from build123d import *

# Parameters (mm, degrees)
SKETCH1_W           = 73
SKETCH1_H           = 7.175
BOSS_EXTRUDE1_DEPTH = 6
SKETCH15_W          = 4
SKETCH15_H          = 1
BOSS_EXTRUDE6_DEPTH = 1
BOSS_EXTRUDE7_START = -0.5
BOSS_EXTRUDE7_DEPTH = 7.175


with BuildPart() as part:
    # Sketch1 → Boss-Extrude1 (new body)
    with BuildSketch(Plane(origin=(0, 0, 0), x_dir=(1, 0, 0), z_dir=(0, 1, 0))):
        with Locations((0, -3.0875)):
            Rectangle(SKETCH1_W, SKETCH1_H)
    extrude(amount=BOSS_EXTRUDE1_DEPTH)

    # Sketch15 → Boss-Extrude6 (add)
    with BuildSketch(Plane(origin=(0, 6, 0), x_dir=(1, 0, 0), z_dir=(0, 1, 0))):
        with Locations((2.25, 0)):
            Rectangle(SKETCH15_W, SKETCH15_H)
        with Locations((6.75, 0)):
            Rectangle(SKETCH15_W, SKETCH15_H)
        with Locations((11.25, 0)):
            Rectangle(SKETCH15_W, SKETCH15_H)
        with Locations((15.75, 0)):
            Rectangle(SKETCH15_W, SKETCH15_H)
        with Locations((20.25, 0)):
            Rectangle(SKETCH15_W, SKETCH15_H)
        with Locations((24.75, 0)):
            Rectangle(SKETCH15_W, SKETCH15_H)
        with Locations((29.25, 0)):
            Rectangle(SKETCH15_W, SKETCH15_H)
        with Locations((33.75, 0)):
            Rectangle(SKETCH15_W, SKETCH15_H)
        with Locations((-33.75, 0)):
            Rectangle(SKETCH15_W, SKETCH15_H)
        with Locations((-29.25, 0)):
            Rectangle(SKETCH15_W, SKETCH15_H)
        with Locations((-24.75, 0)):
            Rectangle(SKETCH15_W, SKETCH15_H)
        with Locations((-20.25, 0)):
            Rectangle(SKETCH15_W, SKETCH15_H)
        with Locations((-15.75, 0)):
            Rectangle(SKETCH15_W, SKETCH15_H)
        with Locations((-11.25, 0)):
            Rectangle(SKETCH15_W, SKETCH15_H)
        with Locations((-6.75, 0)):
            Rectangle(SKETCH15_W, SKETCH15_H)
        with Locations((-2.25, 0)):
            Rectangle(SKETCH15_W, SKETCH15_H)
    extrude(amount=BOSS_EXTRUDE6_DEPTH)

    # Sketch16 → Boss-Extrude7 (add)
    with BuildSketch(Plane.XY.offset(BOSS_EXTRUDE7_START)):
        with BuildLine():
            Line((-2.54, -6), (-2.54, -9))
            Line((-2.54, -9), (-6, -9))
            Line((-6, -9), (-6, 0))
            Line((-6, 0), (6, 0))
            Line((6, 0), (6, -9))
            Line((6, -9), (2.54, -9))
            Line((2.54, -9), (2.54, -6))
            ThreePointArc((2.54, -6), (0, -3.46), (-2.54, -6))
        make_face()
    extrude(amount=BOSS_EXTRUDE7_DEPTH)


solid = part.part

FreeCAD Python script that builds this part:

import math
import FreeCAD as App
import Part
import Sketcher
Q = App.Units.Quantity


def add_polygon(sketch, points):
    """Adds a closed chain of lines whose ends are joined by coincident constraints."""
    first, n = sketch.GeometryCount, len(points)
    for a, b in zip(points, points[1:] + points[:1]):
        sketch.addGeometry(Part.LineSegment(App.Vector(*a, 0), App.Vector(*b, 0)), False)
    for i in range(n):
        sketch.addConstraint(Sketcher.Constraint("Coincident", first + i, 2, first + (i + 1) % n, 1))

doc = App.newDocument("Part")
body = doc.addObject("PartDesign::Body", "Body")

# Sketch on XZ plane
sketch1 = doc.addObject("Sketcher::SketchObject", "Sketch")
body.addObject(sketch1)
sketch1.AttachmentSupport = (doc.XZ_Plane, [""])
sketch1.MapMode = "FlatFace"
add_polygon(sketch1, [(-36.5, -0.5), (-36.5, 6.675), (36.5, 6.675), (36.5, -0.5)])  # lines 0-3
sketch1.addConstraint([
    Sketcher.Constraint("Vertical", 0),
    Sketcher.Constraint("Horizontal", 1),
    Sketcher.Constraint("Vertical", 2),
    Sketcher.Constraint("Horizontal", 3),
    Sketcher.Constraint("DistanceX", 1, 1, 1, 2, Q("73 mm")),
    Sketcher.Constraint("DistanceX", 0, 2, -1, 1, Q("36.5 mm")),
    Sketcher.Constraint("DistanceY", 2, 2, -1, 1, Q("0.5 mm")),
    Sketcher.Constraint("DistanceY", 0, 1, 0, 2, Q("7.175 mm")),
])
pad1 = doc.addObject("PartDesign::Pad", "Pad")
body.addObject(pad1)
pad1.Profile = sketch1
pad1.Length = 6
pad1.Reversed = True

# Sketch on XZ plane
sketch2 = doc.addObject("Sketcher::SketchObject", "Sketch001")
body.addObject(sketch2)
sketch2.AttachmentSupport = (doc.XZ_Plane, [""])
sketch2.MapMode = "FlatFace"
sketch2.AttachmentOffset = App.Placement(App.Vector(0, 0, -6), App.Rotation())
add_polygon(sketch2, [(0.25, -0.5), (0.25, 0.5), (4.25, 0.5), (4.25, -0.5)])  # lines 0-3
add_polygon(sketch2, [(4.75, -0.5), (4.75, 0.5), (8.75, 0.5), (8.75, -0.5)])  # lines 4-7
add_polygon(sketch2, [(9.25, -0.5), (9.25, 0.5), (13.25, 0.5), (13.25, -0.5)])  # lines 8-11
add_polygon(sketch2, [(13.75, -0.5), (13.75, 0.5), (17.75, 0.5), (17.75, -0.5)])  # lines 12-15
add_polygon(sketch2, [(18.25, -0.5), (18.25, 0.5), (22.25, 0.5), (22.25, -0.5)])  # lines 16-19
add_polygon(sketch2, [(22.75, -0.5), (22.75, 0.5), (26.75, 0.5), (26.75, -0.5)])  # lines 20-23
add_polygon(sketch2, [(27.25, -0.5), (27.25, 0.5), (31.25, 0.5), (31.25, -0.5)])  # lines 24-27
add_polygon(sketch2, [(31.75, -0.5), (31.75, 0.5), (35.75, 0.5), (35.75, -0.5)])  # lines 28-31
add_polygon(sketch2, [(-35.75, -0.5), (-35.75, 0.5), (-31.75, 0.5), (-31.75, -0.5)])  # lines 32-35
add_polygon(sketch2, [(-31.25, -0.5), (-31.25, 0.5), (-27.25, 0.5), (-27.25, -0.5)])  # lines 36-39
add_polygon(sketch2, [(-26.75, -0.5), (-26.75, 0.5), (-22.75, 0.5), (-22.75, -0.5)])  # lines 40-43
add_polygon(sketch2, [(-22.25, -0.5), (-22.25, 0.5), (-18.25, 0.5), (-18.25, -0.5)])  # lines 44-47
add_polygon(sketch2, [(-17.75, -0.5), (-17.75, 0.5), (-13.75, 0.5), (-13.75, -0.5)])  # lines 48-51
add_polygon(sketch2, [(-13.25, -0.5), (-13.25, 0.5), (-9.25, 0.5), (-9.25, -0.5)])  # lines 52-55
add_polygon(sketch2, [(-8.75, -0.5), (-8.75, 0.5), (-4.75, 0.5), (-4.75, -0.5)])  # lines 56-59
add_polygon(sketch2, [(-4.25, -0.5), (-4.25, 0.5), (-0.25, 0.5), (-0.25, -0.5)])  # lines 60-63
sketch2.addConstraint([
    Sketcher.Constraint("Vertical", 0),
    Sketcher.Constraint("Horizontal", 1),
    Sketcher.Constraint("Vertical", 2),
    Sketcher.Constraint("Horizontal", 3),
    Sketcher.Constraint("Vertical", 4),
    Sketcher.Constraint("Horizontal", 5),
    Sketcher.Constraint("Vertical", 6),
    Sketcher.Constraint("Horizontal", 7),
    Sketcher.Constraint("Vertical", 8),
    Sketcher.Constraint("Horizontal", 9),
    Sketcher.Constraint("Vertical", 10),
    Sketcher.Constraint("Horizontal", 11),
    Sketcher.Constraint("Vertical", 12),
    Sketcher.Constraint("Horizontal", 13),
    Sketcher.Constraint("Vertical", 14),
    Sketcher.Constraint("Horizontal", 15),
    Sketcher.Constraint("Vertical", 16),
    Sketcher.Constraint("Horizontal", 17),
    Sketcher.Constraint("Vertical", 18),
    Sketcher.Constraint("Horizontal", 19),
    Sketcher.Constraint("Vertical", 20),
    Sketcher.Constraint("Horizontal", 21),
    Sketcher.Constraint("Vertical", 22),
    Sketcher.Constraint("Horizontal", 23),
    Sketcher.Constraint("Vertical", 24),
    Sketcher.Constraint("Horizontal", 25),
    Sketcher.Constraint("Vertical", 26),
    Sketcher.Constraint("Horizontal", 27),
    Sketcher.Constraint("Vertical", 28),
    Sketcher.Constraint("Horizontal", 29),
    Sketcher.Constraint("Vertical", 30),
    Sketcher.Constraint("Horizontal", 31),
    Sketcher.Constraint("Vertical", 32),
    Sketcher.Constraint("Horizontal", 33),
    Sketcher.Constraint("Vertical", 34),
    Sketcher.Constraint("Horizontal", 35),
    Sketcher.Constraint("Vertical", 36),
    Sketcher.Constraint("Horizontal", 37),
    Sketcher.Constraint("Vertical", 38),
    Sketcher.Constraint("Horizontal", 39),
    Sketcher.Constraint("Vertical", 40),
    Sketcher.Constraint("Horizontal", 41),
    Sketcher.Constraint("Vertical", 42),
    Sketcher.Constraint("Horizontal", 43),
    Sketcher.Constraint("Vertical", 44),
    Sketcher.Constraint("Horizontal", 45),
    Sketcher.Constraint("Vertical", 46),
    Sketcher.Constraint("Horizontal", 47),
    Sketcher.Constraint("Vertical", 48),
    Sketcher.Constraint("Horizontal", 49),
    Sketcher.Constraint("Vertical", 50),
    Sketcher.Constraint("Horizontal", 51),
    Sketcher.Constraint("Vertical", 52),
    Sketcher.Constraint("Horizontal", 53),
    Sketcher.Constraint("Vertical", 54),
    Sketcher.Constraint("Horizontal", 55),
    Sketcher.Constraint("Vertical", 56),
    Sketcher.Constraint("Horizontal", 57),
    Sketcher.Constraint("Vertical", 58),
    Sketcher.Constraint("Horizontal", 59),
    Sketcher.Constraint("Vertical", 60),
    Sketcher.Constraint("Horizontal", 61),
    Sketcher.Constraint("Vertical", 62),
    Sketcher.Constraint("Horizontal", 63),
    Sketcher.Constraint("Symmetric", 30, 2, 32, 2, -1, 1),
    Sketcher.Constraint("Symmetric", 28, 2, 34, 2, -1, 1),
    Sketcher.Constraint("Symmetric", 26, 2, 36, 2, -1, 1),
    Sketcher.Constraint("Symmetric", 24, 2, 38, 2, -1, 1),
    Sketcher.Constraint("Symmetric", 22, 2, 40, 2, -1, 1),
    Sketcher.Constraint("Symmetric", 20, 2, 42, 2, -1, 1),
    Sketcher.Constraint("Symmetric", 18, 2, 44, 2, -1, 1),
    Sketcher.Constraint("Symmetric", 16, 2, 46, 2, -1, 1),
    Sketcher.Constraint("Symmetric", 14, 2, 48, 2, -1, 1),
    Sketcher.Constraint("Symmetric", 12, 2, 50, 2, -1, 1),
    Sketcher.Constraint("Symmetric", 10, 2, 52, 2, -1, 1),
    Sketcher.Constraint("Symmetric", 8, 2, 54, 2, -1, 1),
    Sketcher.Constraint("Symmetric", 6, 2, 56, 2, -1, 1),
    Sketcher.Constraint("Symmetric", 4, 2, 58, 2, -1, 1),
    Sketcher.Constraint("Symmetric", 2, 2, 60, 2, -1, 1),
    Sketcher.Constraint("Symmetric", 0, 2, 62, 2, -1, 1),
    Sketcher.Constraint("Horizontal", 1, 2, 4, 2),
    Sketcher.Constraint("Horizontal", 3, 2, 6, 2),
    Sketcher.Constraint("Horizontal", 5, 2, 8, 2),
    Sketcher.Constraint("Horizontal", 7, 2, 10, 2),
    Sketcher.Constraint("Horizontal", 9, 2, 12, 2),
    Sketcher.Constraint("Horizontal", 11, 2, 14, 2),
    Sketcher.Constraint("Horizontal", 13, 2, 16, 2),
    Sketcher.Constraint("Horizontal", 15, 2, 18, 2),
    Sketcher.Constraint("Horizontal", 17, 2, 20, 2),
    Sketcher.Constraint("Horizontal", 19, 2, 22, 2),
    Sketcher.Constraint("Horizontal", 21, 2, 24, 2),
    Sketcher.Constraint("Horizontal", 23, 2, 26, 2),
    Sketcher.Constraint("Horizontal", 25, 2, 28, 2),
    Sketcher.Constraint("Horizontal", 27, 2, 30, 2),
    Sketcher.Constraint("Horizontal", 29, 2, 32, 2),
    Sketcher.Constraint("Equal", 3, 5),
    Sketcher.Constraint("Equal", 7, 9),
    Sketcher.Constraint("Equal", 11, 13),
    Sketcher.Constraint("Equal", 15, 17),
    Sketcher.Constraint("Equal", 19, 21),
    Sketcher.Constraint("Equal", 23, 25),
    Sketcher.Constraint("Equal", 27, 29),
    Sketcher.Constraint("DistanceX", 1, 1, 1, 2, Q("4 mm")),
    Sketcher.Constraint("DistanceY", 0, 1, 0, 2, Q("1 mm")),
    Sketcher.Constraint("DistanceX", -1, 1, 0, 2, Q("0.25 mm")),
    Sketcher.Constraint("DistanceX", -1, 1, 4, 2, Q("4.75 mm")),
    Sketcher.Constraint("DistanceX", -1, 1, 8, 2, Q("9.25 mm")),
    Sketcher.Constraint("DistanceX", -1, 1, 12, 2, Q("13.75 mm")),
    Sketcher.Constraint("DistanceX", -1, 1, 16, 2, Q("18.25 mm")),
    Sketcher.Constraint("DistanceX", -1, 1, 20, 2, Q("22.75 mm")),
    Sketcher.Constraint("DistanceX", -1, 1, 24, 2, Q("27.25 mm")),
    Sketcher.Constraint("DistanceX", -1, 1, 28, 2, Q("31.75 mm")),
])
pad2 = doc.addObject("PartDesign::Pad", "Pad001")
body.addObject(pad2)
pad2.Profile = sketch2
pad2.Length = 1
pad2.Reversed = True

# Sketch on XY plane
sketch3 = doc.addObject("Sketcher::SketchObject", "Sketch002")
body.addObject(sketch3)
sketch3.AttachmentSupport = (doc.XY_Plane, [""])
sketch3.MapMode = "FlatFace"
sketch3.AttachmentOffset = App.Placement(App.Vector(0, 0, -0.5), App.Rotation())
sketch3.addGeometry([
    Part.LineSegment(App.Vector(-2.54, -9, 0), App.Vector(-2.54, -6, 0)),  # 0
    Part.ArcOfCircle(Part.Circle(App.Vector(0, -6, 0), App.Vector(0, 0, 1), 2.54), math.radians(0), math.radians(180)),  # 1
    Part.LineSegment(App.Vector(2.54, -6, 0), App.Vector(2.54, -9, 0)),  # 2
    Part.LineSegment(App.Vector(2.54, -9, 0), App.Vector(6, -9, 0)),  # 3
    Part.LineSegment(App.Vector(6, -9, 0), App.Vector(6, 0, 0)),  # 4
    Part.LineSegment(App.Vector(6, 0, 0), App.Vector(-6, 0, 0)),  # 5
    Part.LineSegment(App.Vector(-6, 0, 0), App.Vector(-6, -9, 0)),  # 6
    Part.LineSegment(App.Vector(-6, -9, 0), App.Vector(-2.54, -9, 0)),  # 7
], False)
sketch3.addConstraint([
    Sketcher.Constraint("Tangent", 0, 2, 1, 2),
    Sketcher.Constraint("Tangent", 1, 1, 2, 1),
    Sketcher.Constraint("Coincident", 2, 2, 3, 1),
    Sketcher.Constraint("Coincident", 3, 2, 4, 1),
    Sketcher.Constraint("Coincident", 4, 2, 5, 1),
    Sketcher.Constraint("Coincident", 5, 2, 6, 1),
    Sketcher.Constraint("Coincident", 6, 2, 7, 1),
    Sketcher.Constraint("Coincident", 7, 2, 0, 1),
    Sketcher.Constraint("Vertical", 0),
    Sketcher.Constraint("Vertical", 2),
    Sketcher.Constraint("Horizontal", 3),
    Sketcher.Constraint("Vertical", 4),
    Sketcher.Constraint("Horizontal", 5),
    Sketcher.Constraint("Vertical", 6),
    Sketcher.Constraint("Horizontal", 7),
    Sketcher.Constraint("Symmetric", 4, 2, 5, 2, -1, 1),
    Sketcher.Constraint("Symmetric", 2, 2, 7, 2, -2),
    Sketcher.Constraint("DistanceX", 5, 2, 5, 1, Q("12 mm")),
    Sketcher.Constraint("DistanceY", 0, 1, 0, 2, Q("3 mm")),
    Sketcher.Constraint("DistanceY", 4, 1, 4, 2, Q("9 mm")),
    Sketcher.Constraint("Radius", 1, Q("2.54 mm")),
])
pad3 = doc.addObject("PartDesign::Pad", "Pad002")
body.addObject(pad3)
pad3.Profile = sketch3
pad3.Length = 7.175

doc.recompute()
